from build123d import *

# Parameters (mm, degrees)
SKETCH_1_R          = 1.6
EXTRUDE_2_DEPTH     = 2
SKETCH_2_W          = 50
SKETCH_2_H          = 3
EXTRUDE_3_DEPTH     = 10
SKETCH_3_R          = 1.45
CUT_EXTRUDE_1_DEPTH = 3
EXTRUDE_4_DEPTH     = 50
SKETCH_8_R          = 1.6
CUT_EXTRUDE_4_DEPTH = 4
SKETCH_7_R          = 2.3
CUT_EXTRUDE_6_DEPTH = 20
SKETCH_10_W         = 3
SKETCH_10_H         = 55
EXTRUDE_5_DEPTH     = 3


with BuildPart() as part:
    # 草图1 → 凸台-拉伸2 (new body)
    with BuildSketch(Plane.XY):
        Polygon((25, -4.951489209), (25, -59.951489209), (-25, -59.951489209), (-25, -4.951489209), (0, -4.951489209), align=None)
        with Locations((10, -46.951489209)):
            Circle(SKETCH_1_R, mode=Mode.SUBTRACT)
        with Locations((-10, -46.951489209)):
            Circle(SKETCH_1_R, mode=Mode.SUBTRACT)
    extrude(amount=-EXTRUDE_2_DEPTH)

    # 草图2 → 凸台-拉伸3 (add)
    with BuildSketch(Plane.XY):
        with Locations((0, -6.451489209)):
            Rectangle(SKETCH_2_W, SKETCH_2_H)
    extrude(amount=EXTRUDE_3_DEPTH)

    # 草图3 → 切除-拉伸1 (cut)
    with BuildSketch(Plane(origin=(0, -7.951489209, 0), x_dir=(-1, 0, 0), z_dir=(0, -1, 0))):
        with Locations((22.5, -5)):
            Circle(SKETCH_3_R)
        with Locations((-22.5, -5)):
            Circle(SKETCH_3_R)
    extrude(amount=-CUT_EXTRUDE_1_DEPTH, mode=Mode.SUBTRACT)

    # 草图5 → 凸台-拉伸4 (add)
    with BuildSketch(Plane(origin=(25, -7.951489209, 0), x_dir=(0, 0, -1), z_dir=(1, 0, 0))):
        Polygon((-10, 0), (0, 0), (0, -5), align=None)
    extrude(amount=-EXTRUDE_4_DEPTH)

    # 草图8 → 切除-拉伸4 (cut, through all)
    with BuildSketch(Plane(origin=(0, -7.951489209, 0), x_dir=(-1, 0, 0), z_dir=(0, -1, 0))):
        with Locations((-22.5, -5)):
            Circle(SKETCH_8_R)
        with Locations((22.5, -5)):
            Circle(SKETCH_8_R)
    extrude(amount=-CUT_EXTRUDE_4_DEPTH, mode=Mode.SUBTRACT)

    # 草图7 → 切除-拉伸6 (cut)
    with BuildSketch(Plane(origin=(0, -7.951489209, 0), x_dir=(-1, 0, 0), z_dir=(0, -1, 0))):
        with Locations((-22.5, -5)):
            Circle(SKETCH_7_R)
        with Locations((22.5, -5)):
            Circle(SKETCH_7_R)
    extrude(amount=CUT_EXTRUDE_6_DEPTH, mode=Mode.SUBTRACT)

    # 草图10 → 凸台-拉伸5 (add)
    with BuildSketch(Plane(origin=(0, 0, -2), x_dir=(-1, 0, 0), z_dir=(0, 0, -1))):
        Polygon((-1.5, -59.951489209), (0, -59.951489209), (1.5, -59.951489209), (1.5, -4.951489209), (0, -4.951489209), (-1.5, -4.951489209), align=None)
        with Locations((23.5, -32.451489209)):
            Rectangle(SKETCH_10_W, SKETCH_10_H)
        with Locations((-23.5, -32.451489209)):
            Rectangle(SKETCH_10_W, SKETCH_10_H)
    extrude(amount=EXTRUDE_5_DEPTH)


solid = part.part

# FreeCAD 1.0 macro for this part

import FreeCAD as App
import Part
import Sketcher
Q = App.Units.Quantity


def add_polygon(sketch, points):
    """Adds a closed chain of lines whose ends are joined by coincident constraints."""
    first, n = sketch.GeometryCount, len(points)
    for a, b in zip(points, points[1:] + points[:1]):
        sketch.addGeometry(Part.LineSegment(App.Vector(*a, 0), App.Vector(*b, 0)), False)
    for i in range(n):
        sketch.addConstraint(Sketcher.Constraint("Coincident", first + i, 2, first + (i + 1) % n, 1))

doc = App.newDocument("Part")
body = doc.addObject("PartDesign::Body", "Body")

# Sketch on XY plane
sketch1 = body.newObject("Sketcher::SketchObject", "Sketch")
sketch1.AttachmentSupport = (doc.getObject("XY_Plane"), [""])
sketch1.MapMode = "FlatFace"
add_polygon(sketch1, [(25, -60), (25, -5), (-25, -5), (-25, -60)])  # lines 0-3
sketch1.addGeometry(Part.Circle(App.Vector(10, -47, 0), App.Vector(0, 0, 1), 1.6), False)  # 4
sketch1.addGeometry(Part.Circle(App.Vector(-10, -47, 0), App.Vector(0, 0, 1), 1.6), False)  # 5
sketch1.addConstraint([
    Sketcher.Constraint("Vertical", 0),
    Sketcher.Constraint("Horizontal", 1),
    Sketcher.Constraint("Vertical", 2),
    Sketcher.Constraint("Horizontal", 3),
    Sketcher.Constraint("Equal", 4, 5),
    Sketcher.Constraint("Symmetric", 4, 3, 5, 3, -2),
    Sketcher.Constraint("Diameter", 4, Q("3.2 mm")),
    Sketcher.Constraint("DistanceX", 1, 2, 1, 1, Q("50 mm")),
    Sketcher.Constraint("DistanceY", 0, 1, 0, 2, Q("55 mm")),
    Sketcher.Constraint("DistanceX", -1, 1, 4, 3, Q("10 mm")),
    Sketcher.Constraint("DistanceX", -1, 1, 0, 2, Q("25 mm")),
    Sketcher.Constraint("DistanceY", 4, 3, 0, 2, Q("42 mm")),
    Sketcher.Constraint("DistanceY", 4, 3, -1, 1, Q("46.951489 mm")),
])
pad1 = body.newObject("PartDesign::Pad", "Pad")
pad1.Profile = sketch1
pad1.Length = 2
pad1.Reversed = True

# Sketch on XY plane
sketch2 = body.newObject("Sketcher::SketchObject", "Sketch001")
sketch2.AttachmentSupport = (doc.getObject("XY_Plane"), [""])
sketch2.MapMode = "FlatFace"
add_polygon(sketch2, [(-25, -5), (-25, -8), (25, -8), (25, -5)])  # lines 0-3
sketch2.addConstraint([
    Sketcher.Constraint("Vertical", 0),
    Sketcher.Constraint("Horizontal", 1),
    Sketcher.Constraint("Vertical", 2),
    Sketcher.Constraint("Horizontal", 3),
    Sketcher.Constraint("DistanceX", 1, 1, 1, 2, Q("50 mm")),
    Sketcher.Constraint("DistanceY", 0, 2, 0, 1, Q("3 mm")),
    Sketcher.Constraint("DistanceX", 0, 2, -1, 1, Q("25 mm")),
    Sketcher.Constraint("DistanceY", 0, 2, -1, 1, Q("7.951489 mm")),
])
pad2 = body.newObject("PartDesign::Pad", "Pad001")
pad2.Profile = sketch2
pad2.Length = 10

# Sketch on XZ plane
sketch3 = body.newObject("Sketcher::SketchObject", "Sketch002")
sketch3.AttachmentSupport = (doc.getObject("XZ_Plane"), [""])
sketch3.MapMode = "FlatFace"
sketch3.AttachmentOffset = App.Placement(App.Vector(0, 0, 7.951489), App.Rotation())
sketch3.addGeometry([
    Part.Circle(App.Vector(-22.5, 5, 0), App.Vector(0, 0, 1), 1.4),
    Part.Circle(App.Vector(22.5, 5, 0), App.Vector(0, 0, 1), 1.4),
], False)
sketch3.addConstraint([
    Sketcher.Constraint("Equal", 0, 1),
    Sketcher.Constraint("Symmetric", 0, 3, 1, 3, -2),
    Sketcher.Constraint("Diameter", 0, Q("2.9 mm")),
    Sketcher.Constraint("DistanceY", -1, 1, 0, 3, Q("5 mm")),
    Sketcher.Constraint("DistanceX", 0, 3, 1, 3, Q("45 mm")),
])
pocket1 = body.newObject("PartDesign::Pocket", "Pocket")
pocket1.Profile = sketch3
pocket1.Length = 3

# Sketch on YZ plane
sketch4 = body.newObject("Sketcher::SketchObject", "Sketch003")
sketch4.AttachmentSupport = (doc.getObject("YZ_Plane"), [""])
sketch4.MapMode = "FlatFace"
sketch4.AttachmentOffset = App.Placement(App.Vector(0, 0, 25), App.Rotation())
add_polygon(sketch4, [(-8, 0), (-8, 10), (-13, 0)])  # lines 0-2
sketch4.addConstraint([
    Sketcher.Constraint("Vertical", 0),
    Sketcher.Constraint("Horizontal", 2),
    Sketcher.Constraint("PointOnObject", 1, 2, -1),
    Sketcher.Constraint("DistanceX", 2, 1, 2, 2, Q("5 mm")),
    Sketcher.Constraint("DistanceY", 0, 1, 0, 2, Q("10 mm")),
    Sketcher.Constraint("DistanceX", 0, 2, -1, 1, Q("7.951489 mm")),
])
pad3 = body.newObject("PartDesign::Pad", "Pad002")
pad3.Profile = sketch4
pad3.Length = 50
pad3.Reversed = True

# Sketch on XZ plane
sketch5 = body.newObject("Sketcher::SketchObject", "Sketch004")
sketch5.AttachmentSupport = (doc.getObject("XZ_Plane"), [""])
sketch5.MapMode = "FlatFace"
sketch5.AttachmentOffset = App.Placement(App.Vector(0, 0, 7.951489), App.Rotation())
sketch5.addGeometry([
    Part.Circle(App.Vector(22.5, 5, 0), App.Vector(0, 0, 1), 1.6),
    Part.Circle(App.Vector(-22.5, 5, 0), App.Vector(0, 0, 1), 1.6),
], False)
sketch5.addConstraint([
    Sketcher.Constraint("Equal", 0, 1),
    Sketcher.Constraint("Symmetric", 0, 3, 1, 3, -2),
    Sketcher.Constraint("Diameter", 0, Q("3.2 mm")),
    Sketcher.Constraint("DistanceY", -1, 1, 0, 3, Q("5 mm")),
    Sketcher.Constraint("DistanceX", 1, 3, 0, 3, Q("45 mm")),
])
pocket2 = body.newObject("PartDesign::Pocket", "Pocket001")
pocket2.Profile = sketch5
pocket2.Type = "ThroughAll"

# Sketch on XZ plane
sketch6 = body.newObject("Sketcher::SketchObject", "Sketch005")
sketch6.AttachmentSupport = (doc.getObject("XZ_Plane"), [""])
sketch6.MapMode = "FlatFace"
sketch6.AttachmentOffset = App.Placement(App.Vector(0, 0, 7.951489), App.Rotation())
sketch6.addGeometry([
    Part.Circle(App.Vector(22.5, 5, 0), App.Vector(0, 0, 1), 2.3),
    Part.Circle(App.Vector(-22.5, 5, 0), App.Vector(0, 0, 1), 2.3),
], False)
sketch6.addConstraint([
    Sketcher.Constraint("Equal", 0, 1),
    Sketcher.Constraint("Symmetric", 0, 3, 1, 3, -2),
    Sketcher.Constraint("Diameter", 0, Q("4.6 mm")),
    Sketcher.Constraint("DistanceY", -1, 1, 0, 3, Q("5 mm")),
    Sketcher.Constraint("DistanceX", 1, 3, 0, 3, Q("45 mm")),
])
pocket3 = body.newObject("PartDesign::Pocket", "Pocket002")
pocket3.Profile = sketch6
pocket3.Length = 20
pocket3.Reversed = True

# Sketch on XY plane
sketch7 = body.newObject("Sketcher::SketchObject", "Sketch006")
sketch7.AttachmentSupport = (doc.getObject("XY_Plane"), [""])
sketch7.MapMode = "FlatFace"
sketch7.AttachmentOffset = App.Placement(App.Vector(0, 0, -2), App.Rotation())
add_polygon(sketch7, [(1.5, -60), (-1.5, -60), (-1.5, -5), (1.5, -5)])  # lines 0-3
add_polygon(sketch7, [(-22, -5), (-22, -60), (-25, -60), (-25, -5)])  # lines 4-7
add_polygon(sketch7, [(25, -5), (25, -60), (22, -60), (22, -5)])  # lines 8-11
sketch7.addConstraint([
    Sketcher.Constraint("Horizontal", 0),
    Sketcher.Constraint("Vertical", 1),
    Sketcher.Constraint("Horizontal", 2),
    Sketcher.Constraint("Vertical", 3),
    Sketcher.Constraint("Vertical", 4),
    Sketcher.Constraint("Horizontal", 5),
    Sketcher.Constraint("Vertical", 6),
    Sketcher.Constraint("Horizontal", 7),
    Sketcher.Constraint("Vertical", 8),
    Sketcher.Constraint("Horizontal", 9),
    Sketcher.Constraint("Vertical", 10),
    Sketcher.Constraint("Horizontal", 11),
    Sketcher.Constraint("Symmetric", 5, 2, 8, 2, -2),
    Sketcher.Constraint("Symmetric", 7, 2, 10, 2, -2),
    Sketcher.Constraint("Horizontal", 3, 2, 4, 2),
    Sketcher.Constraint("Horizontal", 2, 2, 6, 2),
    Sketcher.Constraint("Equal", 2, 5),
    Sketcher.Constraint("DistanceX", 0, 2, 0, 1, Q("3 mm")),
    Sketcher.Constraint("DistanceY", 1, 1, 1, 2, Q("55 mm")),
    Sketcher.Constraint("DistanceX", 4, 2, -1, 1, Q("22 mm")),
    Sketcher.Constraint("DistanceX", 0, 2, -1, 1, Q("1.5 mm")),
    Sketcher.Constraint("DistanceY", 0, 2, -1, 1, Q("59.951489 mm")),
])
pad4 = body.newObject("PartDesign::Pad", "Pad003")
pad4.Profile = sketch7
pad4.Length = 3
pad4.Reversed = True

doc.recompute()
